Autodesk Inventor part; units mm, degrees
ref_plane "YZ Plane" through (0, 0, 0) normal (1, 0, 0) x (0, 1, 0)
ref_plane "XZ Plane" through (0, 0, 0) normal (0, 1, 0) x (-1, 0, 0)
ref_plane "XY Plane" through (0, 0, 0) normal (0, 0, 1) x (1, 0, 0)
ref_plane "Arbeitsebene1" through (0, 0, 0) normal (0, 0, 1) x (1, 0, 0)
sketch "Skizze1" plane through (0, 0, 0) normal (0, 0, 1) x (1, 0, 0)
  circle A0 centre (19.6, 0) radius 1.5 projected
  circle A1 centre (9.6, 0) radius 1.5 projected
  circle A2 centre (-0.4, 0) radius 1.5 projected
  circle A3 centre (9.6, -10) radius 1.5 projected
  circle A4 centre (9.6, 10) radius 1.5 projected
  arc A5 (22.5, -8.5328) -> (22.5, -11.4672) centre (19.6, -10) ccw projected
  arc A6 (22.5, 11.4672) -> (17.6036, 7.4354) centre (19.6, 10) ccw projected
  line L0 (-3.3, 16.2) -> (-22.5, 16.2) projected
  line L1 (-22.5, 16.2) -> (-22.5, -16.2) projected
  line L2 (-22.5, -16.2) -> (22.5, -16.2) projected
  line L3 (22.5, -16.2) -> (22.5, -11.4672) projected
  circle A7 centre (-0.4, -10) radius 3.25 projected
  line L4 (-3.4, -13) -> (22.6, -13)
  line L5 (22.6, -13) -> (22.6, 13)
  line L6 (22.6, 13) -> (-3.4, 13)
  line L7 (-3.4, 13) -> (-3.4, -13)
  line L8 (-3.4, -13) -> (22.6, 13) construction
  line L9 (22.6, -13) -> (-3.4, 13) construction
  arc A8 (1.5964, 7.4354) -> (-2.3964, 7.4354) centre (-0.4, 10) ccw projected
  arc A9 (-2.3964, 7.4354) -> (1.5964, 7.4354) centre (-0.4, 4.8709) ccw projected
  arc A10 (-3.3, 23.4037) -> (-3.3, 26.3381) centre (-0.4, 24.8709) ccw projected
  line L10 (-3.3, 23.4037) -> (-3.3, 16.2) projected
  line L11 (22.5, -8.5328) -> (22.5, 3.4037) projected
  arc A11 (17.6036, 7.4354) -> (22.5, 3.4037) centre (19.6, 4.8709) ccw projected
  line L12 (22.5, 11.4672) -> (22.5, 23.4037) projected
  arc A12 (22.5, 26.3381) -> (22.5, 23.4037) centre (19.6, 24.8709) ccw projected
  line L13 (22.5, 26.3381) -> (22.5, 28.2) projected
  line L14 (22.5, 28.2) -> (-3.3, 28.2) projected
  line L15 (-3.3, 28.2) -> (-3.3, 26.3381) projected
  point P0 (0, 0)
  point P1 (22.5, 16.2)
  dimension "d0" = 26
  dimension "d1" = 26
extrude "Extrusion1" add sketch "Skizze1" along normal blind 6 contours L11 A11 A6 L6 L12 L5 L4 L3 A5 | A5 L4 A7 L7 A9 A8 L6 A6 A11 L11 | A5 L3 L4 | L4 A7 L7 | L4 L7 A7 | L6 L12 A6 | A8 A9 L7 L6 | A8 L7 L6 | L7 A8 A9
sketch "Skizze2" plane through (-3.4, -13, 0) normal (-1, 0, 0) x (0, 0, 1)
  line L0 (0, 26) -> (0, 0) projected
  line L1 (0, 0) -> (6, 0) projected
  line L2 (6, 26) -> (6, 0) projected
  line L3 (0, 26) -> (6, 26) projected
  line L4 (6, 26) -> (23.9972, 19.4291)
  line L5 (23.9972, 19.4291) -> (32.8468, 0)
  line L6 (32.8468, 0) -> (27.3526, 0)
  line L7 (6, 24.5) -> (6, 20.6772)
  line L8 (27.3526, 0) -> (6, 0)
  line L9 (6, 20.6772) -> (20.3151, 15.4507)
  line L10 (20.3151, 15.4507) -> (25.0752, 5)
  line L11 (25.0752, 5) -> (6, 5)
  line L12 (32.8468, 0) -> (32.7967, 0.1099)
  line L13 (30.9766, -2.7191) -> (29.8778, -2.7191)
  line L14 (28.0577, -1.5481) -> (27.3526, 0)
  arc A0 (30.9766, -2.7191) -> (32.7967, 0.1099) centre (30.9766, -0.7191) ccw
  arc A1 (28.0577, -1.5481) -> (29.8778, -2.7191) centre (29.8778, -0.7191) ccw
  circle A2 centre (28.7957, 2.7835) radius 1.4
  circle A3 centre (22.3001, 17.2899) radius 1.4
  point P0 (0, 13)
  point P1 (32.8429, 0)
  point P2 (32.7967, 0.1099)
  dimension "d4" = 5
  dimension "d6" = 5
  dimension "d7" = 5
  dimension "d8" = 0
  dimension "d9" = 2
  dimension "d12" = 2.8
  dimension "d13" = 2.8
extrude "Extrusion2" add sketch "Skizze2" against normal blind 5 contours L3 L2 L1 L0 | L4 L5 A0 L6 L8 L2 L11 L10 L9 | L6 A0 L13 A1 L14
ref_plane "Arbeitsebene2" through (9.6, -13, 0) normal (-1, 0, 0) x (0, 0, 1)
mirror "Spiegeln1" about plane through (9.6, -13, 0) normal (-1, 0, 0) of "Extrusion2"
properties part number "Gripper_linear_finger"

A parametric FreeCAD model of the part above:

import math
import FreeCAD as App
import Part
import Sketcher
from FreeCAD import Vector
Q = App.Units.Quantity


def add_polygon(sketch, points):
    """Adds a closed chain of lines whose ends are joined by coincident constraints."""
    first, n = sketch.GeometryCount, len(points)
    for a, b in zip(points, points[1:] + points[:1]):
        sketch.addGeometry(Part.LineSegment(App.Vector(*a, 0), App.Vector(*b, 0)), False)
    for i in range(n):
        sketch.addConstraint(Sketcher.Constraint("Coincident", first + i, 2, first + (i + 1) % n, 1))

doc = App.newDocument("Part")
body = doc.addObject("PartDesign::Body", "Body")

sketch1 = body.newObject("Sketcher::SketchObject", "Sketch")
sketch1.AttachmentSupport = (doc.getObject("XY_Plane"), [""])
sketch1.MapMode = "FlatFace"
add_polygon(sketch1, [(-3.4, 13), (-3.4, -13), (22.6, -13), (22.6, 13)])
sketch1.addGeometry(Part.Circle(Vector(9.6, -10, 0), Vector(0, 0, 1), 1.5), False)
sketch1.addGeometry(Part.Circle(Vector(9.6, 0, 0), Vector(0, 0, 1), 1.5), False)
sketch1.addGeometry(Part.Circle(Vector(19.6, 0, 0), Vector(0, 0, 1), 1.5), False)
sketch1.addGeometry(Part.Circle(Vector(9.6, 10, 0), Vector(0, 0, 1), 1.5), False)
sketch1.addGeometry(Part.Circle(Vector(-0.4, 0, 0), Vector(0, 0, 1), 1.5), False)
sketch1.addConstraint(Sketcher.Constraint("Vertical", 0))
sketch1.addConstraint(Sketcher.Constraint("Horizontal", 1))
sketch1.addConstraint(Sketcher.Constraint("Vertical", 2))
sketch1.addConstraint(Sketcher.Constraint("Horizontal", 3))
sketch1.addConstraint(Sketcher.Constraint("Equal", 4, 5))
sketch1.addConstraint(Sketcher.Constraint("Equal", 5, 6))
sketch1.addConstraint(Sketcher.Constraint("Equal", 6, 7))
sketch1.addConstraint(Sketcher.Constraint("Equal", 7, 8))
sketch1.addConstraint(Sketcher.Constraint("Symmetric", 4, 3, 7, 3, -1))
sketch1.addConstraint(Sketcher.Constraint("PointOnObject", 5, 3, -1))
sketch1.addConstraint(Sketcher.Constraint("PointOnObject", 6, 3, -1))
sketch1.addConstraint(Sketcher.Constraint("PointOnObject", 8, 3, -1))
sketch1.addConstraint(Sketcher.Constraint("Vertical", 4, 3, 5, 3))
sketch1.addConstraint(Sketcher.Constraint("Equal", 3, 0))
sketch1.addConstraint(Sketcher.Constraint("DistanceX", 1, 1, 1, 2, Q("26 mm")))
sketch1.addConstraint(Sketcher.Constraint("Diameter", 4, Q("3 mm")))
sketch1.addConstraint(Sketcher.Constraint("DistanceY", 4, 3, -1, 1, Q("10 mm")))
sketch1.addConstraint(Sketcher.Constraint("DistanceY", 0, 2, -1, 1, Q("13 mm")))
sketch1.addConstraint(Sketcher.Constraint("DistanceX", 5, 3, 6, 3, Q("10 mm")))
sketch1.addConstraint(Sketcher.Constraint("DistanceX", 8, 3, 5, 3, Q("10 mm")))
sketch1.addConstraint(Sketcher.Constraint("DistanceX", 0, 2, 4, 3, Q("13 mm")))
sketch1.addConstraint(Sketcher.Constraint("DistanceX", -1, 1, 4, 3, Q("9.6 mm")))
pad1 = body.newObject("PartDesign::Pad", "Pad")
pad1.Profile = sketch1
pad1.Length = 6

sketch2 = body.newObject("Sketcher::SketchObject", "Sketch001")
sketch2.AttachmentSupport = (doc.getObject("YZ_Plane"), [""])
sketch2.MapMode = "FlatFace"
sketch2.AttachmentOffset = App.Placement(Vector(0, 0, -3.4), App.Rotation())
sketch2.addGeometry(Part.LineSegment(Vector(13, 6, 0), Vector(13, 0, 0)), False)
sketch2.addGeometry(Part.LineSegment(Vector(13, 0, 0), Vector(-13, 0, 0)), False)
sketch2.addGeometry(Part.LineSegment(Vector(-13, 0, 0), Vector(-13, 27.3526, 0)), False)
sketch2.addGeometry(Part.LineSegment(Vector(-13, 27.3526, 0), Vector(-14.5481, 28.0577, 0)), False)
sketch2.addGeometry(Part.ArcOfCircle(Part.Circle(Vector(-13.7191, 29.8778, 0), Vector(0, 0, 1), 2.000001), math.radians(180), math.radians(245.512183)), False)
sketch2.addGeometry(Part.LineSegment(Vector(-15.7191, 29.8778, 0), Vector(-15.7191, 30.9766, 0)), False)
sketch2.addGeometry(Part.ArcOfCircle(Part.Circle(Vector(-13.7191, 30.9766, 0), Vector(0, 0, 1), 2), math.radians(65.512183), math.radians(180)), False)
sketch2.addGeometry(Part.LineSegment(Vector(-12.890084, 32.796735, 0), Vector(6.4291, 23.9972, 0)), False)
sketch2.addGeometry(Part.LineSegment(Vector(6.4291, 23.9972, 0), Vector(13, 6, 0)), False)
add_polygon(sketch2, [(-8, 6), (7.6772, 6), (2.4507, 20.3151), (-8, 25.0752)])
sketch2.addGeometry(Part.Circle(Vector(4.2899, 22.3001, 0), Vector(0, 0, 1), 1.4), False)
sketch2.addGeometry(Part.Circle(Vector(-10.2165, 28.7957, 0), Vector(0, 0, 1), 1.4), False)
sketch2.addConstraint(Sketcher.Constraint("Coincident", 0, 2, 1, 1))
sketch2.addConstraint(Sketcher.Constraint("Coincident", 1, 2, 2, 1))
sketch2.addConstraint(Sketcher.Constraint("Coincident", 2, 2, 3, 1))
sketch2.addConstraint(Sketcher.Constraint("Coincident", 3, 2, 4, 2))
sketch2.addConstraint(Sketcher.Constraint("Coincident", 4, 1, 5, 1))
sketch2.addConstraint(Sketcher.Constraint("Coincident", 5, 2, 6, 2))
sketch2.addConstraint(Sketcher.Constraint("Coincident", 6, 1, 7, 1))
sketch2.addConstraint(Sketcher.Constraint("Coincident", 7, 2, 8, 1))
sketch2.addConstraint(Sketcher.Constraint("Coincident", 8, 2, 0, 1))
sketch2.addConstraint(Sketcher.Constraint("Vertical", 0))
sketch2.addConstraint(Sketcher.Constraint("Horizontal", 1))
sketch2.addConstraint(Sketcher.Constraint("Vertical", 2))
sketch2.addConstraint(Sketcher.Constraint("Vertical", 5))
sketch2.addConstraint(Sketcher.Constraint("Horizontal", 9))
sketch2.addConstraint(Sketcher.Constraint("Vertical", 12))
sketch2.addConstraint(Sketcher.Constraint("PointOnObject", 0, 2, -1))
sketch2.addConstraint(Sketcher.Constraint("Radius", 4, Q("2 mm")))
sketch2.addConstraint(Sketcher.Constraint("Radius", 6, Q("2 mm")))
sketch2.addConstraint(Sketcher.Constraint("Diameter", 13, Q("2.8 mm")))
sketch2.addConstraint(Sketcher.Constraint("Diameter", 14, Q("2.8 mm")))
sketch2.addConstraint(Sketcher.Constraint("DistanceX", 2, 2, 11, 2, Q("5 mm")))
sketch2.addConstraint(Sketcher.Constraint("DistanceX", 1, 2, 1, 1, Q("26 mm")))
sketch2.addConstraint(Sketcher.Constraint("DistanceY", 0, 2, 0, 1, Q("6 mm")))
sketch2.addConstraint(Sketcher.Constraint("DistanceX", -1, 1, 0, 2, Q("13 mm")))
sketch2.addConstraint(Sketcher.Constraint("DistanceY", -1, 1, 9, 2, Q("6 mm")))
sketch2.addConstraint(Sketcher.Constraint("DistanceY", -1, 1, 13, 3, Q("22.3 mm")))
sketch2.addConstraint(Sketcher.Constraint("DistanceX", -1, 1, 13, 3, Q("4.29 mm")))
sketch2.addConstraint(Sketcher.Constraint("DistanceX", 6, 1, -1, 1, Q("12.89 mm")))
sketch2.addConstraint(Sketcher.Constraint("DistanceY", 3, 2, 4, 3, Q("1.82 mm")))
sketch2.addConstraint(Sketcher.Constraint("DistanceY", 3, 2, 4, 1, Q("1.82 mm")))
sketch2.addConstraint(Sketcher.Constraint("DistanceY", 6, 3, 6, 1, Q("1.82 mm")))
sketch2.addConstraint(Sketcher.Constraint("DistanceY", 5, 2, 6, 1, Q("1.82 mm")))
sketch2.addConstraint(Sketcher.Constraint("Distance", 3, Q("1.701 mm")))
sketch2.addConstraint(Sketcher.Constraint("DistanceX", 9, 1, 9, 2, Q("15.6772 mm")))
sketch2.addConstraint(Sketcher.Constraint("DistanceY", 2, 1, 2, 2, Q("27.3526 mm")))
sketch2.addConstraint(Sketcher.Constraint("DistanceY", 5, 1, 5, 2, Q("1.0988 mm")))
sketch2.addConstraint(Sketcher.Constraint("DistanceY", 12, 2, 12, 1, Q("19.0752 mm")))
sketch2.addConstraint(Sketcher.Constraint("DistanceX", -1, 1, 7, 2, Q("6.429 mm")))
sketch2.addConstraint(Sketcher.Constraint("DistanceY", -1, 1, 10, 2, Q("20.315 mm")))
sketch2.addConstraint(Sketcher.Constraint("DistanceY", 14, 3, 4, 3, Q("1.082 mm")))
sketch2.addConstraint(Sketcher.Constraint("DistanceY", 13, 3, 7, 2, Q("1.697 mm")))
sketch2.addConstraint(Sketcher.Constraint("Distance", 10, Q("15.2394 mm")))
sketch2.addConstraint(Sketcher.Constraint("DistanceX", 14, 3, -1, 1, Q("10.2165 mm")))
pad2 = body.newObject("PartDesign::Pad", "Pad001")
pad2.Profile = sketch2
pad2.Length = 5
doc.recompute()

datumplane = body.newObject("PartDesign::Plane", "DatumPlane")
datumplane.AttachmentSupport = (doc.getObject("YZ_Plane"), [""])
datumplane.MapMode = "FlatFace"
datumplane.AttachmentOffset = App.Placement(Vector(0, 0, 9.6), App.Rotation())
mirrored = body.newObject("PartDesign::Mirrored", "Mirrored")
mirrored.Originals = [pad2]
mirrored.MirrorPlane = (datumplane, [""])
body.Tip = mirrored

doc.recompute()
